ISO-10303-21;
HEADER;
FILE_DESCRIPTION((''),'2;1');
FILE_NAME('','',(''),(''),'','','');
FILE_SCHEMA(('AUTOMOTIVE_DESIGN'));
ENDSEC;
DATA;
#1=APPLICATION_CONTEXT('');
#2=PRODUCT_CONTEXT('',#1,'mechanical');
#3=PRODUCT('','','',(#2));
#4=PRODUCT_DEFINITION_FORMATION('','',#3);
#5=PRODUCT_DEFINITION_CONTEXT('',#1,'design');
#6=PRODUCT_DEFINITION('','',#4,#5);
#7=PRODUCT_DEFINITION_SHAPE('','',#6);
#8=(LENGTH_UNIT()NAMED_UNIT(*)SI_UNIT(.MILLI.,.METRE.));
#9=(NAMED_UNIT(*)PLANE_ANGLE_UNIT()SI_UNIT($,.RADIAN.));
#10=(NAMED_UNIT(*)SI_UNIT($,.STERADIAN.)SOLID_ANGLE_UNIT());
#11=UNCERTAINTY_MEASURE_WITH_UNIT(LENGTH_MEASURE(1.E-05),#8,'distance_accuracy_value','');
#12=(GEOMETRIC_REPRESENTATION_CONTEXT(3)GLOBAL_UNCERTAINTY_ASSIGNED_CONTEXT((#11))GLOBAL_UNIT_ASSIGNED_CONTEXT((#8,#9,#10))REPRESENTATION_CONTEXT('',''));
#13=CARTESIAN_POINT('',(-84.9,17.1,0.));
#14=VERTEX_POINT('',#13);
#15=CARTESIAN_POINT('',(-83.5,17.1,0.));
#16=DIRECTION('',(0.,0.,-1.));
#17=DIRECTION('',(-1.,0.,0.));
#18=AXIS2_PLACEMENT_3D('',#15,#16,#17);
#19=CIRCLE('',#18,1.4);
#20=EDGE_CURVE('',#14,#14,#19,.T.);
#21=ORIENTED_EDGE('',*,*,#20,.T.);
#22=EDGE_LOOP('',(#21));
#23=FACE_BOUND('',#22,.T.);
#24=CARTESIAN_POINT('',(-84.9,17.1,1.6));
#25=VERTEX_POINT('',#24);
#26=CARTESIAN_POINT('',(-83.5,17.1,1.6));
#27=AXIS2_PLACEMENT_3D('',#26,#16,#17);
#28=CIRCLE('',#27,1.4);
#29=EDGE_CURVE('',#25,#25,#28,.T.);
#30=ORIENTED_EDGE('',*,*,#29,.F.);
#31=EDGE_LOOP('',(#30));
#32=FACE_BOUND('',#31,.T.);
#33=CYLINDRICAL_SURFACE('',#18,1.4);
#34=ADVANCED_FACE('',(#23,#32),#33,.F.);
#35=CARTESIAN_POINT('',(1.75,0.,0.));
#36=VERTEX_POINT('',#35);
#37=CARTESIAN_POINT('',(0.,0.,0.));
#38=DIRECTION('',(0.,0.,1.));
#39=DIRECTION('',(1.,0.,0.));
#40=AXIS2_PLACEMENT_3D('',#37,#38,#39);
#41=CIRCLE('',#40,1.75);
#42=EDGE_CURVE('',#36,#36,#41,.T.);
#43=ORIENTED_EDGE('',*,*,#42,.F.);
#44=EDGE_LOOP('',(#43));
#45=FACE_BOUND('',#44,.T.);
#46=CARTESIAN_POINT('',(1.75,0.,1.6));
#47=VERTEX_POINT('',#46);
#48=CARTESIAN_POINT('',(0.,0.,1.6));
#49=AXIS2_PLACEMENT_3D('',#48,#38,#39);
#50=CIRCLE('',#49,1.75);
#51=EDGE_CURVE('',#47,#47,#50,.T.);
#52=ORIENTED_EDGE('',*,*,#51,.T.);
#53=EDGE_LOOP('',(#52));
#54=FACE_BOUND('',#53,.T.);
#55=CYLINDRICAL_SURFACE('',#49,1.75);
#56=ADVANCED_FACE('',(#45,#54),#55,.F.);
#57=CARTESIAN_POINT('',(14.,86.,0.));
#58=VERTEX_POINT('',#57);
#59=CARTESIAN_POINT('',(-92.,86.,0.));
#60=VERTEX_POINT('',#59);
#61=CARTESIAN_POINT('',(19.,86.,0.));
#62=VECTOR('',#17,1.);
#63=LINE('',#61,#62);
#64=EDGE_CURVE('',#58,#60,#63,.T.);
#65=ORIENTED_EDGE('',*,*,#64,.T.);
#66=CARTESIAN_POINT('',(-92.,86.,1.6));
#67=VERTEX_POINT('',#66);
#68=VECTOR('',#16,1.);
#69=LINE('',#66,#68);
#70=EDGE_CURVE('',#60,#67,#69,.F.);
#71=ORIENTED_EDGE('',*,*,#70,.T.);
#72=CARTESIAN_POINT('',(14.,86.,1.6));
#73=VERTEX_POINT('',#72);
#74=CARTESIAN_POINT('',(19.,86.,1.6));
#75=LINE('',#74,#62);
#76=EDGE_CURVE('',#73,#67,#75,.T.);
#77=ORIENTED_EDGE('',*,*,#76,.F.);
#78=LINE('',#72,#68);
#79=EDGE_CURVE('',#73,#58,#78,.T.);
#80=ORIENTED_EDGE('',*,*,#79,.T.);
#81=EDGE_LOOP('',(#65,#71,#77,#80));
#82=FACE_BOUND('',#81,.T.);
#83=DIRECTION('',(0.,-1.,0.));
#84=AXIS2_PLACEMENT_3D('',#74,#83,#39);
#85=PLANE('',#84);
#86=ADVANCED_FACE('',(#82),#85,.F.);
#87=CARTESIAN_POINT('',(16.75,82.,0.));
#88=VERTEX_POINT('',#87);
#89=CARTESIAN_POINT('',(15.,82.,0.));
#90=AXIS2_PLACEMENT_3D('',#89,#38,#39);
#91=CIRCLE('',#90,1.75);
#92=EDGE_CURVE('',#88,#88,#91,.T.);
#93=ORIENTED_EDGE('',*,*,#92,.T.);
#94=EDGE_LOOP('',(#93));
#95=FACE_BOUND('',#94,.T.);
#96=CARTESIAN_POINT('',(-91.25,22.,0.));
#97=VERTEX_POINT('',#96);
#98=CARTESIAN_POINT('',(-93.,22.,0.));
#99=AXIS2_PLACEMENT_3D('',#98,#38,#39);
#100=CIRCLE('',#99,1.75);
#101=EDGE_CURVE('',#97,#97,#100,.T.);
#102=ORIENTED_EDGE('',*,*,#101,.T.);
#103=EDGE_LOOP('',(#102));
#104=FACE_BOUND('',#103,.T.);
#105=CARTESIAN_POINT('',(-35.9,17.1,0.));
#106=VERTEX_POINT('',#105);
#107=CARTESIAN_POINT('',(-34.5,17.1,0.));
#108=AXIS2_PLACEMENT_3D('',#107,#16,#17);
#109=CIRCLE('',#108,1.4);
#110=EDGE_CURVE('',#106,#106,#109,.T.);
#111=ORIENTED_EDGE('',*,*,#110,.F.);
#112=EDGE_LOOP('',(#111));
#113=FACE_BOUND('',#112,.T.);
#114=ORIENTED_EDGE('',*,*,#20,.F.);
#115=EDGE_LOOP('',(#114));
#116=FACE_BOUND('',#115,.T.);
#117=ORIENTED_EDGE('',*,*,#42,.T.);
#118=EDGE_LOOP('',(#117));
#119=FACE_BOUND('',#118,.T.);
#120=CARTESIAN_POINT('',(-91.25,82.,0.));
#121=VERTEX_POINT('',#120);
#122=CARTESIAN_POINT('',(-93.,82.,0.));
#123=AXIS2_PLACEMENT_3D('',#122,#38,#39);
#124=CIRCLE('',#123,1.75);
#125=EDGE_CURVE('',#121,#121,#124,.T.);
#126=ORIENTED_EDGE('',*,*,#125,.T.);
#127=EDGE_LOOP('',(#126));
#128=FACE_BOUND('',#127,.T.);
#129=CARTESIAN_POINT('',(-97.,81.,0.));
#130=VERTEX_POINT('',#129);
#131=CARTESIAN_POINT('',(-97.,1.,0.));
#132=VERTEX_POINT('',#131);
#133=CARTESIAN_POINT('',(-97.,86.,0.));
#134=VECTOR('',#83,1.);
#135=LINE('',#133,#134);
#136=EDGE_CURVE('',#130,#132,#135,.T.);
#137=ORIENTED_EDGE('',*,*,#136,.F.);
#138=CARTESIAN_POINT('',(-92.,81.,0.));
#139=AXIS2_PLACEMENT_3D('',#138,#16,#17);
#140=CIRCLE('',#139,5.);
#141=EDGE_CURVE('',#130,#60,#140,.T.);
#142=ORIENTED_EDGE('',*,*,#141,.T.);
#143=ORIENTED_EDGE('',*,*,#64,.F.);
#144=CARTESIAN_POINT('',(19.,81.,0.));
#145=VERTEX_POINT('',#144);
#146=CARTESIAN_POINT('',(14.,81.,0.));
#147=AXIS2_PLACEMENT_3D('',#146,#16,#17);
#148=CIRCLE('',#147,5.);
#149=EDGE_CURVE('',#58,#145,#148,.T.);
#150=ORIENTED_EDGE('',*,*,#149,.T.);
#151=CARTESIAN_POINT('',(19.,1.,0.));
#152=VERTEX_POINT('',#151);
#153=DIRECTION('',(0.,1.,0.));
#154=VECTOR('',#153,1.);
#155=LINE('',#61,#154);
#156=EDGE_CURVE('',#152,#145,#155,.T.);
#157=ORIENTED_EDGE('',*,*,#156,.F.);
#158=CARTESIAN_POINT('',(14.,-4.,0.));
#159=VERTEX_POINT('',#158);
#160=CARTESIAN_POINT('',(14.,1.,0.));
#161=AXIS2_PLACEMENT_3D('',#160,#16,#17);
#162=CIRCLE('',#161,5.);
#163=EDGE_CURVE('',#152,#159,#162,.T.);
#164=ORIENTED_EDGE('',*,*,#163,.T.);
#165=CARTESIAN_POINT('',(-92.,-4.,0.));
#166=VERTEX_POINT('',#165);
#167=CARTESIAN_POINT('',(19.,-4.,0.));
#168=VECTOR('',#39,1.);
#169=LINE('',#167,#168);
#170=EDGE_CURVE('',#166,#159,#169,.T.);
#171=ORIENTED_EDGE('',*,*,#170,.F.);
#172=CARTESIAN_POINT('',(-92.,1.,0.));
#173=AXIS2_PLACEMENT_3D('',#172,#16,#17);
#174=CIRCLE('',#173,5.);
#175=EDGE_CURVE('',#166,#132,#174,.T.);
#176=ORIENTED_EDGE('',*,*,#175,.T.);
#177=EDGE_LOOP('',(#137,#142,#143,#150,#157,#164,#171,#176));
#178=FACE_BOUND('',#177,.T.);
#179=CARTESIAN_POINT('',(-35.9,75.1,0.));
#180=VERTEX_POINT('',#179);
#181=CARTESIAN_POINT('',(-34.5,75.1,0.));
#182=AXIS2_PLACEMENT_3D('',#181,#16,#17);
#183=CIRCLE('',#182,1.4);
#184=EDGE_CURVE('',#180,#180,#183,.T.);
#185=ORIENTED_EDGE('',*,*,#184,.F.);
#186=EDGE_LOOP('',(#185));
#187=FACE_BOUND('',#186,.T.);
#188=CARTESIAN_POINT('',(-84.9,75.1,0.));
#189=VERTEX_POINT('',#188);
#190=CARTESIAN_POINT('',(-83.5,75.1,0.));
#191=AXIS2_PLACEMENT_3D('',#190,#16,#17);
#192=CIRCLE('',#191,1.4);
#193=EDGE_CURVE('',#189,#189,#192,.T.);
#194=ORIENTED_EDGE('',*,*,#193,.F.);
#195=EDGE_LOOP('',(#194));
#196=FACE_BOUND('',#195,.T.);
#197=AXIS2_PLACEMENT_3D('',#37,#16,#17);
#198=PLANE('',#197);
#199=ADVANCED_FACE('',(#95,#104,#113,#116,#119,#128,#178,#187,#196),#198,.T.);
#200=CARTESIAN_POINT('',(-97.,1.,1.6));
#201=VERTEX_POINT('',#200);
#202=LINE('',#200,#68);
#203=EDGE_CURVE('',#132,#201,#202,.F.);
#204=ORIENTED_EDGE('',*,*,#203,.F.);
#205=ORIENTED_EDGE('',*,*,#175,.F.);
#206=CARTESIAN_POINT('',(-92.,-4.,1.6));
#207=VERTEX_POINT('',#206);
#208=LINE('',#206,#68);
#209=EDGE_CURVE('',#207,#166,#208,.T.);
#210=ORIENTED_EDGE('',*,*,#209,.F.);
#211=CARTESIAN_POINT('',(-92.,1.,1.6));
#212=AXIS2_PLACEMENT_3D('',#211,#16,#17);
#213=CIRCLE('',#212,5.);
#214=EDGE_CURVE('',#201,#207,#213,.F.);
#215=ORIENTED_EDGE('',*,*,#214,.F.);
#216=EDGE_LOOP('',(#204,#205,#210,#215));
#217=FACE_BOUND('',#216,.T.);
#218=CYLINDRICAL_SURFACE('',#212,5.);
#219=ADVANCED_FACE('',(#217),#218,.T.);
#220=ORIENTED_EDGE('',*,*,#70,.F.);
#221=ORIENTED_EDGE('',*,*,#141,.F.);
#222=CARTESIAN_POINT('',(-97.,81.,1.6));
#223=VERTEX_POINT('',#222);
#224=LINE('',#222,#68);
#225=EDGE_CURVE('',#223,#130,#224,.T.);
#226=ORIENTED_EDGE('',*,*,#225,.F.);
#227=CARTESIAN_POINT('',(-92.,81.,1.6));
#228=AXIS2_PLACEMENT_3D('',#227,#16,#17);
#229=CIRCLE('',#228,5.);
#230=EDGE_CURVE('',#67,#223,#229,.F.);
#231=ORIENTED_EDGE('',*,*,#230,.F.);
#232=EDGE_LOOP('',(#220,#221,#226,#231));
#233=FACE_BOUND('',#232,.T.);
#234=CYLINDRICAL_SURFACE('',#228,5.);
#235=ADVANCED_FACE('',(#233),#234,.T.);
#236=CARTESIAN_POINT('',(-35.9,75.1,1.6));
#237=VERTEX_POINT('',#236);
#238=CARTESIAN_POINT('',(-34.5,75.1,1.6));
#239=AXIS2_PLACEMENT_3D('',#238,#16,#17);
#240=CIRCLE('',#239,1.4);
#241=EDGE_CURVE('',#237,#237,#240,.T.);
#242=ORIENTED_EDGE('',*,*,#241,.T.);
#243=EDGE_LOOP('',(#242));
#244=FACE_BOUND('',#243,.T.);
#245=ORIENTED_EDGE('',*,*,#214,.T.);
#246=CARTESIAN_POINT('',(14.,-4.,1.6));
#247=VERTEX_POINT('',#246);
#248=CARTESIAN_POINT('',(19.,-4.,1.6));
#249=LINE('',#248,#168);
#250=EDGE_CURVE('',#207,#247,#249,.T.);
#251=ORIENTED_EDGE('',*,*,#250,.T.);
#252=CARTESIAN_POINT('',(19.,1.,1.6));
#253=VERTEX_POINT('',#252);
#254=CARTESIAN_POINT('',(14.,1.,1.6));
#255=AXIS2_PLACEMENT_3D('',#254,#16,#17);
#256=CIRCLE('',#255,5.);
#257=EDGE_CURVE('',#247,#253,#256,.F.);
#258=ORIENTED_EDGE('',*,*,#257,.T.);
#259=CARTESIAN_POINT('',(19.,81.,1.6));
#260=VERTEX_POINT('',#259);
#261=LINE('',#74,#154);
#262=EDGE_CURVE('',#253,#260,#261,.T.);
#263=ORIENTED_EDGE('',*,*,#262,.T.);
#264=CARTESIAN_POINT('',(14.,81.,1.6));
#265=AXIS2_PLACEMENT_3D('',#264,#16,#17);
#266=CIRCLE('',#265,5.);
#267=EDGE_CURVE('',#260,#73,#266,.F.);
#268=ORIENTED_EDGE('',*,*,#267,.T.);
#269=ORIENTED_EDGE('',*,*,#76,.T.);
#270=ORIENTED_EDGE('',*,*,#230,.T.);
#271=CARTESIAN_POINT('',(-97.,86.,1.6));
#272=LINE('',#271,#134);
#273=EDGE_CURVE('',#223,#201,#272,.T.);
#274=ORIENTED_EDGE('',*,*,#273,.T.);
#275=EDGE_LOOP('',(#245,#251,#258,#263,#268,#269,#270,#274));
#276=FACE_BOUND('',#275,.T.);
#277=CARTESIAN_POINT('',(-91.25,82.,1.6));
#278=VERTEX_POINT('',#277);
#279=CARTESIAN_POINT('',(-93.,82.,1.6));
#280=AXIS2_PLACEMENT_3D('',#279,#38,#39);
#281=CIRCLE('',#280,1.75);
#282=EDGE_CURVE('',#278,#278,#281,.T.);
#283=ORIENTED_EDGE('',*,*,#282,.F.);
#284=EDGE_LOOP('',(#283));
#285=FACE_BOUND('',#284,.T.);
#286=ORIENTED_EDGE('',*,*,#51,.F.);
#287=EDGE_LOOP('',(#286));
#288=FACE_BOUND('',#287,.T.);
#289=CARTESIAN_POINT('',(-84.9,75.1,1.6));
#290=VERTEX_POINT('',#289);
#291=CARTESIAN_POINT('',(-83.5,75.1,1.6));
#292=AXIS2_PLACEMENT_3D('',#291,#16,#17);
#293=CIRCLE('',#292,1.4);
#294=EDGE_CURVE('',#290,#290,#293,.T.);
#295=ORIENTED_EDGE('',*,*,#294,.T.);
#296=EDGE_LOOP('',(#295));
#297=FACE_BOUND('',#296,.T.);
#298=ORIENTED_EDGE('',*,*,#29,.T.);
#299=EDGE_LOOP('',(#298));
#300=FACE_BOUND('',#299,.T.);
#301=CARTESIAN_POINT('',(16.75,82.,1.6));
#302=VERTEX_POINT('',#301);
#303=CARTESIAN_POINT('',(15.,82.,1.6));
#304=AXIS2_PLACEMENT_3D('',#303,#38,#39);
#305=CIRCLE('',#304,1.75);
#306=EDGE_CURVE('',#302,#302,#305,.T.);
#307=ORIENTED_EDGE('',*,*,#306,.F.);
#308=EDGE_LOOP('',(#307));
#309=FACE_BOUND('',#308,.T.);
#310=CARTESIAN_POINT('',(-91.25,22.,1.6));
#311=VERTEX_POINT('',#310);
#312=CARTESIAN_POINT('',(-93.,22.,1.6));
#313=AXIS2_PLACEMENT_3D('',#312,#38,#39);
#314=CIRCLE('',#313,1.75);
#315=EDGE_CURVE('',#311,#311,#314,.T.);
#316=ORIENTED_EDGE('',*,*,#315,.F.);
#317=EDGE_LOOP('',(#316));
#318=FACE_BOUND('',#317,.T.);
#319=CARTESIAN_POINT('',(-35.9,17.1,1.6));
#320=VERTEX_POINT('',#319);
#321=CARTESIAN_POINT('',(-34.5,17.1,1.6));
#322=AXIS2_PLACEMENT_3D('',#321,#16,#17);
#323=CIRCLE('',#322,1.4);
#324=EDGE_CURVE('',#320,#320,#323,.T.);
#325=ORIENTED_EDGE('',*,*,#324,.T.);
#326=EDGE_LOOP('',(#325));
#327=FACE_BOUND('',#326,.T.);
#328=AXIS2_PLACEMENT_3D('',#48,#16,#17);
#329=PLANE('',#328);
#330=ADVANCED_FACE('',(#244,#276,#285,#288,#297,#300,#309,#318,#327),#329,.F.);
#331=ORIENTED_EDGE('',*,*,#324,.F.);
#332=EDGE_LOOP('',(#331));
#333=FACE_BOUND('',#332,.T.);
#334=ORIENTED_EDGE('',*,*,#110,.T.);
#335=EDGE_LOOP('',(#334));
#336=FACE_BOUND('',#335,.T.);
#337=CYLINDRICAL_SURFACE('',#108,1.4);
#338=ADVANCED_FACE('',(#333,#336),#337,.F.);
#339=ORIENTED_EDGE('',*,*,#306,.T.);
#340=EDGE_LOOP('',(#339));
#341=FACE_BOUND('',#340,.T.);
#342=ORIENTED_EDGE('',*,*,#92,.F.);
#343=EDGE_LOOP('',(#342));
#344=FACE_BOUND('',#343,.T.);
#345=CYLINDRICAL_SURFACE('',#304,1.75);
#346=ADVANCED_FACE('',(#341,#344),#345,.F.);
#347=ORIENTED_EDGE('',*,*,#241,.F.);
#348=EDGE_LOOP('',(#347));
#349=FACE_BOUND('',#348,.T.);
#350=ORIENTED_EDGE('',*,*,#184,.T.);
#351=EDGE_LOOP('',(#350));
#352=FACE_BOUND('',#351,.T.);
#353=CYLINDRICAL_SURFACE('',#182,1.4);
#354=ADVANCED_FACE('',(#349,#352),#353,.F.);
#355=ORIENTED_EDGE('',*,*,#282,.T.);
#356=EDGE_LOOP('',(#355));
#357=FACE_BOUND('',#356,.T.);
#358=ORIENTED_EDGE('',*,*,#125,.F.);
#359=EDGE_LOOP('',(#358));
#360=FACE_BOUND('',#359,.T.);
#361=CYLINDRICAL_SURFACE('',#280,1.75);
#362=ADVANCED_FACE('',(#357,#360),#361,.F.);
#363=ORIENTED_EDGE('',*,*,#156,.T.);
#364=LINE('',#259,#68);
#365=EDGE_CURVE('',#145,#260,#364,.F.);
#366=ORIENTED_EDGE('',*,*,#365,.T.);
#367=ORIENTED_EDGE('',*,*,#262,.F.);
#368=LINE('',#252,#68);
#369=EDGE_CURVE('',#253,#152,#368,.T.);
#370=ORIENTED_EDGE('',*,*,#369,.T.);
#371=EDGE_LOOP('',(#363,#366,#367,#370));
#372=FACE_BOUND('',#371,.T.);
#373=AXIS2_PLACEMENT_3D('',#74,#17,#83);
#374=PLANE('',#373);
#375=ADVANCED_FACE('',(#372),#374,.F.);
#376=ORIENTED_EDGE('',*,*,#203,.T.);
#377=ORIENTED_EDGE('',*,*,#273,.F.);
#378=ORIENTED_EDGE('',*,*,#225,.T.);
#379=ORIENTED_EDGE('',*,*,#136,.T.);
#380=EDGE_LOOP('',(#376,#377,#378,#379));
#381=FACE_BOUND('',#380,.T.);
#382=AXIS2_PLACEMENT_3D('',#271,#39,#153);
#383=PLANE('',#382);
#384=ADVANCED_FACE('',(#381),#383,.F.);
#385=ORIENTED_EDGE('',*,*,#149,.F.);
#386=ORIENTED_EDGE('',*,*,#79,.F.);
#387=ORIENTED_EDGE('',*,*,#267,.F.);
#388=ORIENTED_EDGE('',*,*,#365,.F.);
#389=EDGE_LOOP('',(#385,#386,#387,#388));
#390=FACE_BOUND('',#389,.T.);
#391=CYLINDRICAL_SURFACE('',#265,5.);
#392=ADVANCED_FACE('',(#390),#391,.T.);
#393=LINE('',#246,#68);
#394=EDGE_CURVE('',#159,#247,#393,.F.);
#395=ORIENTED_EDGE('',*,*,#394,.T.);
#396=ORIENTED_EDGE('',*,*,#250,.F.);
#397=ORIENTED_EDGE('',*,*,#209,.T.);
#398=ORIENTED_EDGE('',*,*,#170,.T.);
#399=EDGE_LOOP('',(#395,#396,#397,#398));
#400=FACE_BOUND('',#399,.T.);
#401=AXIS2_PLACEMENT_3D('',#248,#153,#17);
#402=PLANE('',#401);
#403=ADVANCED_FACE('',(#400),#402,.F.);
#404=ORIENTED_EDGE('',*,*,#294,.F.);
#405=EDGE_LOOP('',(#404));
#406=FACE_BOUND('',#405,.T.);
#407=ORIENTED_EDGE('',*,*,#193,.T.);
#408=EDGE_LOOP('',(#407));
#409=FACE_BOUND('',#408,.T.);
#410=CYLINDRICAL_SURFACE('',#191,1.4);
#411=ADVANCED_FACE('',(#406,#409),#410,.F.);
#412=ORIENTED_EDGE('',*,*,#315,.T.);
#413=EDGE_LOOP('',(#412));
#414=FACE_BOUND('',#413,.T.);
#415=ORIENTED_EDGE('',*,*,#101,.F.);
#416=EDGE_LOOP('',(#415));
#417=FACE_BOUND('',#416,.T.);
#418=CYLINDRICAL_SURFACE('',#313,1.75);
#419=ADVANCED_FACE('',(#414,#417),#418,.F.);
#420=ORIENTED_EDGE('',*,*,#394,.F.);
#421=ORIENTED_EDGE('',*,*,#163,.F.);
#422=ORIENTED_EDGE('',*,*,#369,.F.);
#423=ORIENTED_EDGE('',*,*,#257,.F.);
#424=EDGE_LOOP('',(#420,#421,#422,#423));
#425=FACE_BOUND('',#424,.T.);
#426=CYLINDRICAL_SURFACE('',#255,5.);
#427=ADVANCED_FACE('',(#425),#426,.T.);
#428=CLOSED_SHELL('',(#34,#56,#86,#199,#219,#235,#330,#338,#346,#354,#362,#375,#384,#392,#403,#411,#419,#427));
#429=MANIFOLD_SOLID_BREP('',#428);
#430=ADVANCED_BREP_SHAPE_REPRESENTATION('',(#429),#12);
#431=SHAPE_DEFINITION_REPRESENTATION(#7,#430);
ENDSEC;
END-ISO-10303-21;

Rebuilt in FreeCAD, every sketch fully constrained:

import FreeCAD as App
import Part
import Sketcher
from FreeCAD import Vector
Q = App.Units.Quantity


def edges_at(feature, points):
    """Names of the edges that pass closest to the given points."""
    edges = feature.Shape.Edges
    near = lambda p: min(range(len(edges)), key=lambda i: edges[i].distToShape(Part.Vertex(*p))[0])
    return sorted({f"Edge{near(p) + 1}" for p in points})

doc = App.newDocument("Part")
body = doc.addObject("PartDesign::Body", "Body")

# Sketch on XY plane
sketch1 = body.newObject("Sketcher::SketchObject", "Sketch")
sketch1.AttachmentSupport = (doc.getObject("XY_Plane"), [""])
sketch1.MapMode = "FlatFace"
sketch1.addGeometry(Part.LineSegment(Vector(-97, 86, 0), Vector(-97, -4, 0)), False)
sketch1.addGeometry(Part.LineSegment(Vector(-97, -4, 0), Vector(19, -4, 0)), False)
sketch1.addGeometry(Part.LineSegment(Vector(19, -4, 0), Vector(19, 86, 0)), False)
sketch1.addGeometry(Part.LineSegment(Vector(19, 86, 0), Vector(-97, 86, 0)), False)
sketch1.addConstraint(Sketcher.Constraint("Coincident", 0, 2, 1, 1))
sketch1.addConstraint(Sketcher.Constraint("Coincident", 1, 2, 2, 1))
sketch1.addConstraint(Sketcher.Constraint("Coincident", 2, 2, 3, 1))
sketch1.addConstraint(Sketcher.Constraint("Coincident", 3, 2, 0, 1))
sketch1.addConstraint(Sketcher.Constraint("Vertical", 0))
sketch1.addConstraint(Sketcher.Constraint("Horizontal", 1))
sketch1.addConstraint(Sketcher.Constraint("Vertical", 2))
sketch1.addConstraint(Sketcher.Constraint("Horizontal", 3))
sketch1.addConstraint(Sketcher.Constraint("DistanceX", 1, 1, 1, 2, Q("116 mm")))
sketch1.addConstraint(Sketcher.Constraint("DistanceY", 0, 2, 0, 1, Q("90 mm")))
sketch1.addConstraint(Sketcher.Constraint("DistanceX", 0, 2, -1, 1, Q("97 mm")))
sketch1.addConstraint(Sketcher.Constraint("DistanceY", 0, 2, -1, 1, Q("4 mm")))
pad1 = body.newObject("PartDesign::Pad", "Pad")
pad1.Profile = sketch1
pad1.Length = 1.6

# Sketch on XY plane
sketch2 = body.newObject("Sketcher::SketchObject", "Sketch001")
sketch2.AttachmentSupport = (doc.getObject("XY_Plane"), [""])
sketch2.MapMode = "FlatFace"
sketch2.AttachmentOffset = App.Placement(Vector(0, 0, 1.6), App.Rotation())
sketch2.addGeometry(Part.Circle(Vector(0, 0, 0), Vector(0, 0, 1), 1.8), False)
sketch2.addGeometry(Part.Circle(Vector(15, 82, 0), Vector(0, 0, 1), 1.8), False)
sketch2.addGeometry(Part.Circle(Vector(-93, 82, 0), Vector(0, 0, 1), 1.8), False)
sketch2.addGeometry(Part.Circle(Vector(-93, 22, 0), Vector(0, 0, 1), 1.8), False)
sketch2.addConstraint(Sketcher.Constraint("Coincident", 0, 3, -1, 1))
sketch2.addConstraint(Sketcher.Constraint("Equal", 0, 1))
sketch2.addConstraint(Sketcher.Constraint("Equal", 1, 2))
sketch2.addConstraint(Sketcher.Constraint("Equal", 2, 3))
sketch2.addConstraint(Sketcher.Constraint("Horizontal", 1, 3, 2, 3))
sketch2.addConstraint(Sketcher.Constraint("Vertical", 2, 3, 3, 3))
sketch2.addConstraint(Sketcher.Constraint("Diameter", 0, Q("3.5 mm")))
sketch2.addConstraint(Sketcher.Constraint("DistanceX", -1, 1, 1, 3, Q("15 mm")))
sketch2.addConstraint(Sketcher.Constraint("DistanceY", -1, 1, 1, 3, Q("82 mm")))
sketch2.addConstraint(Sketcher.Constraint("DistanceX", 2, 3, -1, 1, Q("93 mm")))
sketch2.addConstraint(Sketcher.Constraint("DistanceY", -1, 1, 3, 3, Q("22 mm")))
doc.recompute()
hole = body.newObject("PartDesign::Hole", "Hole")
hole.Profile = sketch2
hole.ThreadType = "None"
hole.Diameter = 3.5
hole.DepthType = "ThroughAll"
doc.recompute()

fillet = body.newObject("PartDesign::Fillet", "Fillet")
fillet.Base = (hole, edges_at(hole, [
    (-97, 86, 0.8),
    (19, 86, 0.8),
    (19, -4, 0.8),
    (-97, -4, 0.8),
]))
fillet.Radius = 5

# Sketch on XY plane
sketch3 = body.newObject("Sketcher::SketchObject", "Sketch002")
sketch3.AttachmentSupport = (doc.getObject("XY_Plane"), [""])
sketch3.MapMode = "FlatFace"
sketch3.addGeometry(Part.Circle(Vector(-34.5, 75.1, 0), Vector(0, 0, 1), 1.4), False)
sketch3.addGeometry(Part.Circle(Vector(-83.5, 75.1, 0), Vector(0, 0, 1), 1.4), False)
sketch3.addGeometry(Part.Circle(Vector(-83.5, 17.1, 0), Vector(0, 0, 1), 1.4), False)
sketch3.addGeometry(Part.Circle(Vector(-34.5, 17.1, 0), Vector(0, 0, 1), 1.4), False)
sketch3.addConstraint(Sketcher.Constraint("Equal", 0, 1))
sketch3.addConstraint(Sketcher.Constraint("Equal", 1, 2))
sketch3.addConstraint(Sketcher.Constraint("Equal", 2, 3))
sketch3.addConstraint(Sketcher.Constraint("Horizontal", 0, 3, 1, 3))
sketch3.addConstraint(Sketcher.Constraint("Horizontal", 2, 3, 3, 3))
sketch3.addConstraint(Sketcher.Constraint("Vertical", 1, 3, 2, 3))
sketch3.addConstraint(Sketcher.Constraint("Vertical", 0, 3, 3, 3))
sketch3.addConstraint(Sketcher.Constraint("Diameter", 0, Q("2.8 mm")))
sketch3.addConstraint(Sketcher.Constraint("DistanceX", 1, 3, 0, 3, Q("49 mm")))
sketch3.addConstraint(Sketcher.Constraint("DistanceY", 2, 3, 1, 3, Q("58 mm")))
sketch3.addConstraint(Sketcher.Constraint("DistanceX", 0, 3, -1, 1, Q("34.5 mm")))
sketch3.addConstraint(Sketcher.Constraint("DistanceY", -1, 1, 0, 3, Q("75.1 mm")))
doc.recompute()
hole2 = body.newObject("PartDesign::Hole", "Hole001")
hole2.Profile = sketch3
hole2.ThreadType = "None"
hole2.Diameter = 2.8
hole2.DepthType = "ThroughAll"
hole2.Reversed = True

doc.recompute()
